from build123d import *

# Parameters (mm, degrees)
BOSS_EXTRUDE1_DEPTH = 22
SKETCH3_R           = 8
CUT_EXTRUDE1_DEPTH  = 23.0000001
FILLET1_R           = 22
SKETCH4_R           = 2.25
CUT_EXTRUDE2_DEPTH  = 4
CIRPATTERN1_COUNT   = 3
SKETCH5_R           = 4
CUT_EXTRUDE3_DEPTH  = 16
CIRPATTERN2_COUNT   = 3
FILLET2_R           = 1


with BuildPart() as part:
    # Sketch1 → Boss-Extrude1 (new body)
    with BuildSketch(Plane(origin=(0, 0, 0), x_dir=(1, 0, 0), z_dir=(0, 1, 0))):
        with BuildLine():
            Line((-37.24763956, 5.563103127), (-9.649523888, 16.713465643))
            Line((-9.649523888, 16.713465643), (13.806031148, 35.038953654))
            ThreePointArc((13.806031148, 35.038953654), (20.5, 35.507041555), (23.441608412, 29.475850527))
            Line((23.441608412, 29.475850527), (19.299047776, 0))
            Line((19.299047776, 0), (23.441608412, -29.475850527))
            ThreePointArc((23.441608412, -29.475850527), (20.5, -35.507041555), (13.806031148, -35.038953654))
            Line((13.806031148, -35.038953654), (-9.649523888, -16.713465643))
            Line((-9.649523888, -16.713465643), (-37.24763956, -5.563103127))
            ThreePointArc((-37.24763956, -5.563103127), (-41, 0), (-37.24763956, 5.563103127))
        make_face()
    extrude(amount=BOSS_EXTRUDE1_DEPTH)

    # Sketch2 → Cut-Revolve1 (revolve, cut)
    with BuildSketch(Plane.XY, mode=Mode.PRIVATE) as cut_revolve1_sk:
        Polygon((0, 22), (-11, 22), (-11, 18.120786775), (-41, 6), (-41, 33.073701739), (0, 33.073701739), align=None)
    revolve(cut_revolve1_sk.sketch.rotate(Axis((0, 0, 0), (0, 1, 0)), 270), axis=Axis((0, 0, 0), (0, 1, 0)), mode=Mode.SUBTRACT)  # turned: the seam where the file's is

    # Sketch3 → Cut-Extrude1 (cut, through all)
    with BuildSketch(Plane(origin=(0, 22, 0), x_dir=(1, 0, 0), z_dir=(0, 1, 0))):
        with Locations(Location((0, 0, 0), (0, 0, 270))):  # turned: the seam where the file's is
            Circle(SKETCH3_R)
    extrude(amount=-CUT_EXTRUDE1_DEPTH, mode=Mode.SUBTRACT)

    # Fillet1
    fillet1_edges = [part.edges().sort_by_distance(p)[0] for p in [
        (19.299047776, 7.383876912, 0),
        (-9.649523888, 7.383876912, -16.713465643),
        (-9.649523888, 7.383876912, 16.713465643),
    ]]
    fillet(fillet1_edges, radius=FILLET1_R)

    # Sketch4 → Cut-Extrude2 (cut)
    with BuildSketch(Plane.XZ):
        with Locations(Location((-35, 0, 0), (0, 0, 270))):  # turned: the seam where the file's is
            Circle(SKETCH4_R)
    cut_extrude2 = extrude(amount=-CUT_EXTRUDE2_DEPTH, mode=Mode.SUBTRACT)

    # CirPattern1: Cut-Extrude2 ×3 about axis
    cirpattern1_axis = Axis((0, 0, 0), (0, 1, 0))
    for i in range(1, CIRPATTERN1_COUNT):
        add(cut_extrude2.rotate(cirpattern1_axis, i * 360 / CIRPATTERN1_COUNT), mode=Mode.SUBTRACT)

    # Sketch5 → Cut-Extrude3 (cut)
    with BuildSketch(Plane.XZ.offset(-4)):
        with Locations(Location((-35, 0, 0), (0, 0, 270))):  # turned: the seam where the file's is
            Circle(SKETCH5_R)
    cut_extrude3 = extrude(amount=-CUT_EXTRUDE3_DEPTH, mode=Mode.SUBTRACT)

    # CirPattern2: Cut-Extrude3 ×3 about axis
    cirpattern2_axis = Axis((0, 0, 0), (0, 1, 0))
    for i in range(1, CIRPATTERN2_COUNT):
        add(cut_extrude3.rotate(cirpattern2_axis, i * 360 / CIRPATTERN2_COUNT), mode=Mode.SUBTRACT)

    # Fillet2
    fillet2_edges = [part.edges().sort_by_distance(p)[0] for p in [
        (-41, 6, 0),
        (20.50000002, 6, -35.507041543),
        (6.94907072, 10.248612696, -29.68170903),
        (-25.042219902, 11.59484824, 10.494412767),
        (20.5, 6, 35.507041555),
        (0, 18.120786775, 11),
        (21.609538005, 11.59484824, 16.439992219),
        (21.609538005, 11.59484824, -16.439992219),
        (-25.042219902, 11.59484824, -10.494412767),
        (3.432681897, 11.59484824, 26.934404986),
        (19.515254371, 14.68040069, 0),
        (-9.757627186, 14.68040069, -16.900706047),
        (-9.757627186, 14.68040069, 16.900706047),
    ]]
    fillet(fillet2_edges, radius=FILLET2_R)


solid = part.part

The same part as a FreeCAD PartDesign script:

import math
import FreeCAD as App
import Part
import Sketcher
Q = App.Units.Quantity


def edges_at(feature, points):
    """Names of the edges that pass closest to the given points."""
    edges = feature.Shape.Edges
    near = lambda p: min(range(len(edges)), key=lambda i: edges[i].distToShape(Part.Vertex(*p))[0])
    return sorted({f"Edge{near(p) + 1}" for p in points})


def add_polygon(sketch, points):
    """Adds a closed chain of lines whose ends are joined by coincident constraints."""
    first, n = sketch.GeometryCount, len(points)
    for a, b in zip(points, points[1:] + points[:1]):
        sketch.addGeometry(Part.LineSegment(App.Vector(*a, 0), App.Vector(*b, 0)), False)
    for i in range(n):
        sketch.addConstraint(Sketcher.Constraint("Coincident", first + i, 2, first + (i + 1) % n, 1))

doc = App.newDocument("Part")
body = doc.addObject("PartDesign::Body", "Body")

# Sketch on XZ plane
sketch1 = body.newObject("Sketcher::SketchObject", "Sketch")
sketch1.AttachmentSupport = (doc.getObject("XZ_Plane"), [""])
sketch1.MapMode = "FlatFace"
sketch1.addGeometry([
    Part.LineSegment(App.Vector(-10, -17, 0), App.Vector(-37, -6, 0)),  # 0
    Part.ArcOfCircle(Part.Circle(App.Vector(-35, 0, 0), App.Vector(0, 0, 1), 6), math.radians(112), math.radians(248)),  # 1
    Part.LineSegment(App.Vector(-37, 6, 0), App.Vector(-10, 17, 0)),  # 2
    Part.LineSegment(App.Vector(-10, 17, 0), App.Vector(14, 35, 0)),  # 3
    Part.ArcOfCircle(Part.Circle(App.Vector(18, 30, 0), App.Vector(0, 0, 1), 6), math.radians(-8), math.radians(128)),  # 4
    Part.LineSegment(App.Vector(23, 29, 0), App.Vector(19, 0, 0)),  # 5
    Part.LineSegment(App.Vector(19, 0, 0), App.Vector(23, -29, 0)),  # 6
    Part.ArcOfCircle(Part.Circle(App.Vector(18, -30, 0), App.Vector(0, 0, 1), 6), math.radians(-128), math.radians(8)),  # 7
    Part.LineSegment(App.Vector(14, -35, 0), App.Vector(-10, -17, 0)),  # 8
], False)
sketch1.addConstraint([
    Sketcher.Constraint("Tangent", 0, 2, 1, 2),
    Sketcher.Constraint("Tangent", 1, 1, 2, 1),
    Sketcher.Constraint("Coincident", 2, 2, 3, 1),
    Sketcher.Constraint("Tangent", 3, 2, 4, 2),
    Sketcher.Constraint("Tangent", 4, 1, 5, 1),
    Sketcher.Constraint("Coincident", 5, 2, 6, 1),
    Sketcher.Constraint("Tangent", 6, 2, 7, 2),
    Sketcher.Constraint("Tangent", 7, 1, 8, 1),
    Sketcher.Constraint("Coincident", 8, 2, 0, 1),
    Sketcher.Constraint("Equal", 1, 4),
    Sketcher.Constraint("Equal", 4, 7),
    Sketcher.Constraint("Symmetric", 4, 3, 7, 3, -1),
    Sketcher.Constraint("Symmetric", 0, 2, 1, 1, -1),
    Sketcher.Constraint("PointOnObject", 5, 2, -1),
    Sketcher.Constraint("Vertical", 3, 2, 7, 1),
    Sketcher.Constraint("Equal", 2, 3),
    Sketcher.Constraint("Equal", 3, 5),
    Sketcher.Constraint("Radius", 1, 6.0),
    Sketcher.Constraint("Angle", 0, Q("158 deg")),
    Sketcher.Constraint("Angle", 3, Q("38 deg")),
    Sketcher.Constraint("DistanceX", 1, 3, -1, 1, 35.0),
    Sketcher.Constraint("DistanceX", -1, 1, 4, 3, 17.5),
])
pad1 = body.newObject("PartDesign::Pad", "Pad")
pad1.Profile = sketch1
pad1.Length = 22
pad1.Reversed = True

# Sketch on XY plane
sketch2 = body.newObject("Sketcher::SketchObject", "Sketch001")
sketch2.AttachmentSupport = (doc.getObject("XY_Plane"), [""])
sketch2.MapMode = "FlatFace"
add_polygon(sketch2, [(-11, 22), (0, 22), (0, 33.1), (-41, 33.1), (-41, 6), (-11, 18.1)])  # lines 0-5
sketch2.addConstraint([
    Sketcher.Constraint("Horizontal", 0),
    Sketcher.Constraint("Vertical", 1),
    Sketcher.Constraint("Horizontal", 2),
    Sketcher.Constraint("Vertical", 3),
    Sketcher.Constraint("Vertical", 5),
    Sketcher.Constraint("PointOnObject", 0, 2, -2),
    Sketcher.Constraint("DistanceX", 0, 1, 0, 2, 11.0),
    Sketcher.Constraint("DistanceX", 2, 2, 2, 1, 41.0),
    Sketcher.Constraint("Angle", 4, Q("22 deg")),
    Sketcher.Constraint("DistanceY", -1, 1, 0, 2, 22.0),
    Sketcher.Constraint("DistanceY", -1, 1, 3, 2, 6.0),
    Sketcher.Constraint("DistanceY", 1, 1, 1, 2, 11.073702),
])
groove = body.newObject("PartDesign::Groove", "Groove")
groove.Profile = sketch2
groove.ReferenceAxis = (sketch2, ["V_Axis"])
groove.Angle = 360

# Sketch on XZ plane
sketch3 = body.newObject("Sketcher::SketchObject", "Sketch002")
sketch3.AttachmentSupport = (doc.getObject("XZ_Plane"), [""])
sketch3.MapMode = "FlatFace"
sketch3.AttachmentOffset = App.Placement(App.Vector(0, 0, -22), App.Rotation())
sketch3.addGeometry(Part.Circle(App.Vector(0, 0, 0), App.Vector(0, 0, 1), 8), False)
sketch3.addConstraint([
    Sketcher.Constraint("Coincident", 0, 3, -1, 1),
    Sketcher.Constraint("Diameter", 0, 16.0),
])
pocket1 = body.newObject("PartDesign::Pocket", "Pocket")
pocket1.Profile = sketch3
pocket1.Type = "ThroughAll"
pocket1.Reversed = True
doc.recompute()

fillet = body.newObject("PartDesign::Fillet", "Fillet")
fillet.Base = (pocket1, edges_at(pocket1, [(19.299, 7.384, 0), (-9.65, 7.384, -16.713), (-9.65, 7.384, 16.713)]))
fillet.Radius = 22

# Sketch on XZ plane
sketch4 = body.newObject("Sketcher::SketchObject", "Sketch003")
sketch4.AttachmentSupport = (doc.getObject("XZ_Plane"), [""])
sketch4.MapMode = "FlatFace"
sketch4.addGeometry(Part.Circle(App.Vector(-35, 0, 0), App.Vector(0, 0, 1), 2.2), False)
sketch4.addConstraint([
    Sketcher.Constraint("PointOnObject", 0, 3, -1),
    Sketcher.Constraint("Diameter", 0, 4.5),
    Sketcher.Constraint("DistanceX", 0, 3, -1, 1, 35.0),
])
pocket2 = body.newObject("PartDesign::Pocket", "Pocket001")
pocket2.Profile = sketch4
pocket2.Length = 4
doc.recompute()

polarpattern = body.newObject("PartDesign::PolarPattern", "PolarPattern")
polarpattern.Originals = [pocket2]
polarpattern.Axis = (doc.getObject("Y_Axis"), [""])
polarpattern.Angle = 360
polarpattern.Occurrences = 3
body.Tip = polarpattern

# Sketch on XZ plane
sketch5 = body.newObject("Sketcher::SketchObject", "Sketch004")
sketch5.AttachmentSupport = (doc.getObject("XZ_Plane"), [""])
sketch5.MapMode = "FlatFace"
sketch5.AttachmentOffset = App.Placement(App.Vector(0, 0, -4), App.Rotation())
sketch5.addGeometry(Part.Circle(App.Vector(-35, 0, 0), App.Vector(0, 0, 1), 4), False)
sketch5.addConstraint([
    Sketcher.Constraint("PointOnObject", 0, 3, -1),
    Sketcher.Constraint("Diameter", 0, 8.0),
    Sketcher.Constraint("DistanceX", 0, 3, -1, 1, 35.0),
])
pocket3 = body.newObject("PartDesign::Pocket", "Pocket002")
pocket3.Profile = sketch5
pocket3.Length = 16
doc.recompute()

polarpattern2 = body.newObject("PartDesign::PolarPattern", "PolarPattern001")
polarpattern2.Originals = [pocket3]
polarpattern2.Axis = (doc.getObject("Y_Axis"), [""])
polarpattern2.Angle = 360
polarpattern2.Occurrences = 3
body.Tip = polarpattern2
doc.recompute()

fillet2 = body.newObject("PartDesign::Fillet", "Fillet001")
fillet2.Base = (polarpattern2, edges_at(polarpattern2, [
    (-41, 6, 0),
    (20.5, 6, -35.507),
    (6.949, 10.249, -29.682),
    (-25.042, 11.595, 10.494),
    (20.5, 6, 35.507),
    (0, 18.121, 11),
    (21.61, 11.595, 16.44),
    (21.61, 11.595, -16.44),
    (-25.042, 11.595, -10.494),
    (3.433, 11.595, 26.934),
    (19.515, 14.68, 0),
    (-9.758, 14.68, -16.901),
    (-9.758, 14.68, 16.901),
]))
fillet2.Radius = 1

doc.recompute()
